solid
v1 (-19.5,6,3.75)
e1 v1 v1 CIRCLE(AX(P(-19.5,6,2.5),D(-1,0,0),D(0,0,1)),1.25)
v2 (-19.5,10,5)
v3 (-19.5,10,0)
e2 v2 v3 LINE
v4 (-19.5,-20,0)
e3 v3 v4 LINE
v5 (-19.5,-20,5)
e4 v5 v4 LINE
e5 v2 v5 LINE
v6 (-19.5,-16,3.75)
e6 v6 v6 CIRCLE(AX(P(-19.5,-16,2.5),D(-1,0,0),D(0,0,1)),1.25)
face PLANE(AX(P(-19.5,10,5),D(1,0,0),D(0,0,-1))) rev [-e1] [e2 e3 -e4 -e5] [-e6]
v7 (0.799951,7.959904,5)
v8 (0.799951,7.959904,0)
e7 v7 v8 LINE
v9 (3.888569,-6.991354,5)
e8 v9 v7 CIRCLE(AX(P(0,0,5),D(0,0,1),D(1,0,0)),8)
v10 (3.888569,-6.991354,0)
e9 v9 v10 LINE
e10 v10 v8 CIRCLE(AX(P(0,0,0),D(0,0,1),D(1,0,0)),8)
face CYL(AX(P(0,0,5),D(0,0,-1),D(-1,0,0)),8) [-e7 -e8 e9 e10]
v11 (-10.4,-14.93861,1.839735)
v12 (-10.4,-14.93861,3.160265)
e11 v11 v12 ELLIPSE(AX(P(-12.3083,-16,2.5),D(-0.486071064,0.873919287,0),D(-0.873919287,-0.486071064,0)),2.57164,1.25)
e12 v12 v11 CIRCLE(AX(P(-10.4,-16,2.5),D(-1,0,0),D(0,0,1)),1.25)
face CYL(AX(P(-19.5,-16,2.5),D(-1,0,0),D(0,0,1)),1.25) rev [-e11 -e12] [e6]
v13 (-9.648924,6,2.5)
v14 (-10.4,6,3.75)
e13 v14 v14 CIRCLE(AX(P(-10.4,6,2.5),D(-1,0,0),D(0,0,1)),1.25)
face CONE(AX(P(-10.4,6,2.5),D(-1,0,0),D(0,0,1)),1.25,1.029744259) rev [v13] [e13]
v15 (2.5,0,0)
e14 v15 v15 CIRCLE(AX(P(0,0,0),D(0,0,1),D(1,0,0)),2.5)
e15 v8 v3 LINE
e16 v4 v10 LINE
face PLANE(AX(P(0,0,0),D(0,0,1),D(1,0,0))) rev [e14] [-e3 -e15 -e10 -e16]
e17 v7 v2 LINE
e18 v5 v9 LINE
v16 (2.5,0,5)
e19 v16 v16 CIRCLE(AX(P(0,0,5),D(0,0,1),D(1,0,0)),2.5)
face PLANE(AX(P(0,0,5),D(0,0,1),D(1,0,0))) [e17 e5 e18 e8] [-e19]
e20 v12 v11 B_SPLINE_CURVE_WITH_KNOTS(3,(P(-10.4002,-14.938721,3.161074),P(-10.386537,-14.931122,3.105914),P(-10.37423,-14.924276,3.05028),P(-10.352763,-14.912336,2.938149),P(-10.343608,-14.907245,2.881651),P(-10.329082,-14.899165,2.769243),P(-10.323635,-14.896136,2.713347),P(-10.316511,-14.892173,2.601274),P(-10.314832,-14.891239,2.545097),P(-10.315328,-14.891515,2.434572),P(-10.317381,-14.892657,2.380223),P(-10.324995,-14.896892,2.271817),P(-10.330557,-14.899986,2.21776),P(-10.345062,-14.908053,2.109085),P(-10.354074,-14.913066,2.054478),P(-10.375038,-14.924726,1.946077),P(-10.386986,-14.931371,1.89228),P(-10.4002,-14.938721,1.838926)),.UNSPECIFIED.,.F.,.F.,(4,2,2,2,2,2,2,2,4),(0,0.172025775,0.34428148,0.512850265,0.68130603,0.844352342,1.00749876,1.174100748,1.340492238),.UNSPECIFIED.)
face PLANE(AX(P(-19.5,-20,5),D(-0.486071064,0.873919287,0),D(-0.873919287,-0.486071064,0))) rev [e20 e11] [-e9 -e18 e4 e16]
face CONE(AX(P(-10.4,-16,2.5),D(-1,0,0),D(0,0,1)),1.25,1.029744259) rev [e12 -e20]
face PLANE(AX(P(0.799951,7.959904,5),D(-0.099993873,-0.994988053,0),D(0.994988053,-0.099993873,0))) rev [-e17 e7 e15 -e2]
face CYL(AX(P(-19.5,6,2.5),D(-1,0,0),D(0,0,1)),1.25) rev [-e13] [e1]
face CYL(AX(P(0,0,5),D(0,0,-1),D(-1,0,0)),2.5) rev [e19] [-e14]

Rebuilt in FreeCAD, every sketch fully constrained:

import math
import FreeCAD as App
import Part
import Sketcher
from FreeCAD import Vector
Q = App.Units.Quantity

doc = App.newDocument("Part")
body = doc.addObject("PartDesign::Body", "Body")

sketch1 = doc.addObject("Sketcher::SketchObject", "Sketch")
body.addObject(sketch1)
sketch1.AttachmentSupport = (doc.XY_Plane, [""])
sketch1.MapMode = "FlatFace"
sketch1.addGeometry([
    Part.LineSegment(Vector(-19.5, 10, 0), Vector(-19.5, -20, 0)),
    Part.LineSegment(Vector(-19.5, -20, 0), Vector(3.888569, -6.991354, 0)),
    Part.ArcOfCircle(Part.Circle(Vector(0, 0, 0), Vector(0, 0, 1), 8), math.radians(-60.917331), math.radians(84.261182)),
    Part.LineSegment(Vector(0.799951, 7.959904, 0), Vector(-19.5, 10, 0)),
    Part.Circle(Vector(0, 0, 0), Vector(0, 0, 1), 2.5),
], False)
sketch1.addConstraint([
    Sketcher.Constraint("Coincident", 0, 2, 1, 1),
    Sketcher.Constraint("Tangent", 1, 2, 2, 1),
    Sketcher.Constraint("Tangent", 2, 2, 3, 1),
    Sketcher.Constraint("Coincident", 3, 2, 0, 1),
    Sketcher.Constraint("Vertical", 0),
    Sketcher.Constraint("Coincident", 2, 3, -1, 1),
    Sketcher.Constraint("Coincident", 4, 3, -1, 1),
    Sketcher.Constraint("Diameter", 4, Q("5 mm")),
    Sketcher.Constraint("Radius", 2, Q("8 mm")),
    Sketcher.Constraint("DistanceY", 0, 2, 0, 1, Q("30 mm")),
    Sketcher.Constraint("DistanceY", 0, 2, -1, 1, Q("20 mm")),
    Sketcher.Constraint("DistanceX", 0, 2, -1, 1, Q("19.5 mm")),
])
pad1 = doc.addObject("PartDesign::Pad", "Pad")
body.addObject(pad1)
pad1.Profile = sketch1
pad1.Length = 5

sketch2 = doc.addObject("Sketcher::SketchObject", "Sketch001")
body.addObject(sketch2)
sketch2.AttachmentSupport = (doc.YZ_Plane, [""])
sketch2.MapMode = "FlatFace"
sketch2.AttachmentOffset = App.Placement(Vector(0, 0, -19.5), App.Rotation())
sketch2.addGeometry([
    Part.Circle(Vector(6, 2.5, 0), Vector(0, 0, 1), 1.25),
    Part.Circle(Vector(-16, 2.5, 0), Vector(0, 0, 1), 1.25),
], False)
sketch2.addConstraint([
    Sketcher.Constraint("Equal", 0, 1),
    Sketcher.Constraint("Horizontal", 0, 3, 1, 3),
    Sketcher.Constraint("Diameter", 0, Q("2.5 mm")),
    Sketcher.Constraint("DistanceX", -1, 1, 0, 3, Q("6 mm")),
    Sketcher.Constraint("DistanceX", 1, 3, -1, 1, Q("16 mm")),
    Sketcher.Constraint("DistanceY", -1, 1, 0, 3, Q("2.5 mm")),
])
doc.recompute()
hole = doc.addObject("PartDesign::Hole", "Hole")
body.addObject(hole)
hole.Profile = sketch2
hole.ThreadType = "None"
hole.Diameter = 2.5
hole.DepthType = "Dimension"
hole.Depth = 9.1
hole.DrillPoint = "Angled"
hole.DrillPointAngle = 118
hole.Reversed = True

doc.recompute()
